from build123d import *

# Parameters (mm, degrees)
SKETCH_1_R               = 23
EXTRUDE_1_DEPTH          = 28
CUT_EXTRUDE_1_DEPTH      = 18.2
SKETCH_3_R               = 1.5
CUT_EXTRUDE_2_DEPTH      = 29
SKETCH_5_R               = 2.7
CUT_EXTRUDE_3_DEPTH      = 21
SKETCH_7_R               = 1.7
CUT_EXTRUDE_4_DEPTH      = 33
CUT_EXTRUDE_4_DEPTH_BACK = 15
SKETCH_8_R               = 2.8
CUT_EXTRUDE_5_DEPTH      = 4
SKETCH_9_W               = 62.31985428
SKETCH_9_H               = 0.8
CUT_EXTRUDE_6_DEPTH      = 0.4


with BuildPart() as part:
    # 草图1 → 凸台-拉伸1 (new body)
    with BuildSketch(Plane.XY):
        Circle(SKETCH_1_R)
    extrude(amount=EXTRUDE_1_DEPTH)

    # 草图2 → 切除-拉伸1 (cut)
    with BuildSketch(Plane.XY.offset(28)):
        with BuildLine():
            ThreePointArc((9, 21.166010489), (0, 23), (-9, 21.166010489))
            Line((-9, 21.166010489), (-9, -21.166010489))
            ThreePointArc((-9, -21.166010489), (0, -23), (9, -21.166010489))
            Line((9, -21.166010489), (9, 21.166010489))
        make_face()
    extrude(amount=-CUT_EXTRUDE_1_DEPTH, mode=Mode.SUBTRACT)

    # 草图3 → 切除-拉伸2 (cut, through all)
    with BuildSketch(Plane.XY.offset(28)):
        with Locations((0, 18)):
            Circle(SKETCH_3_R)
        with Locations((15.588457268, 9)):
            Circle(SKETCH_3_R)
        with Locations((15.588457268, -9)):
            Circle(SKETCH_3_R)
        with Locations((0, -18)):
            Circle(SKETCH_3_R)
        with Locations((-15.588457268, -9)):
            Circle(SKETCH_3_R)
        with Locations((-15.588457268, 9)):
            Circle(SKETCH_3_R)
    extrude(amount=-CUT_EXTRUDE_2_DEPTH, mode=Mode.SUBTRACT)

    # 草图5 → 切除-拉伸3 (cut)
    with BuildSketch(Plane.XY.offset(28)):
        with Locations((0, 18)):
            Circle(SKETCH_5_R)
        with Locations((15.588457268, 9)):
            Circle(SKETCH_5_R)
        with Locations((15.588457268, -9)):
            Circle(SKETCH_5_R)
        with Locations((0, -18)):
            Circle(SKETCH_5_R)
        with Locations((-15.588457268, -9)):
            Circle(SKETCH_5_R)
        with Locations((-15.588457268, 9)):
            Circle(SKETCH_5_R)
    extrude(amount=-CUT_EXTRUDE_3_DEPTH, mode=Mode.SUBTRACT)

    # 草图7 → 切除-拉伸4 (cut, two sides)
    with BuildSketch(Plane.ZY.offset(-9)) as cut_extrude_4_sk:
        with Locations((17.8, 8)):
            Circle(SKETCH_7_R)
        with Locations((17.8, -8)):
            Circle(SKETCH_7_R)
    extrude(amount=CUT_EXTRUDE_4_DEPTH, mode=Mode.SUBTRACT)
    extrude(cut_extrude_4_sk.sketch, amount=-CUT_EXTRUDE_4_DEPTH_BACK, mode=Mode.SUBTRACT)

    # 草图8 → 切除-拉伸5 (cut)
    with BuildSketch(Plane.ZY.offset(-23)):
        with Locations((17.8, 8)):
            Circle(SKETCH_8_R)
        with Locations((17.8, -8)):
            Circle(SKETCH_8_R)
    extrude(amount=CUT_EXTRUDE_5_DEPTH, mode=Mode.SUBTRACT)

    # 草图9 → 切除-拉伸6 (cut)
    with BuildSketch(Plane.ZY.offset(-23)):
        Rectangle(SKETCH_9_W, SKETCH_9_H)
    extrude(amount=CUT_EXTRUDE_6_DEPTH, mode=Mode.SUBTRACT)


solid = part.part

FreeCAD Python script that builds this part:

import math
import FreeCAD as App
import Part
import Sketcher

V = App.Vector


def add_polygon(sketch, points):
    """Adds a closed chain of lines whose ends are joined by coincident constraints."""
    first, n = sketch.GeometryCount, len(points)
    for a, b in zip(points, points[1:] + points[:1]):
        sketch.addGeometry(Part.LineSegment(App.Vector(*a, 0), App.Vector(*b, 0)), False)
    for i in range(n):
        sketch.addConstraint(Sketcher.Constraint("Coincident", first + i, 2, first + (i + 1) % n, 1))

doc = App.newDocument("Part")
body = doc.addObject("PartDesign::Body", "Body")

sketch1 = body.newObject("Sketcher::SketchObject", "Sketch")
sketch1.AttachmentSupport = (doc.getObject("XY_Plane"), [""])
sketch1.MapMode = "FlatFace"
sketch1.addGeometry(Part.Circle(V(0, 0, 0), V(0, 0, 1), 23), False)
sketch1.addConstraint([
    Sketcher.Constraint("Coincident", 0, 3, -1, 1),
    Sketcher.Constraint("Diameter", 0, 46.0),
])
pad1 = body.newObject("PartDesign::Pad", "Pad")
pad1.Profile = sketch1
pad1.Length = 28

sketch2 = body.newObject("Sketcher::SketchObject", "Sketch001")
sketch2.AttachmentSupport = (doc.getObject("XY_Plane"), [""])
sketch2.MapMode = "FlatFace"
sketch2.AttachmentOffset = App.Placement(V(0, 0, 28), App.Rotation())
sketch2.addGeometry([
    Part.ArcOfCircle(Part.Circle(V(0, 0, 0), V(0, 0, 1), 23), math.radians(67), math.radians(113)),
    Part.LineSegment(V(-9, 21, 0), V(-9, -21, 0)),
    Part.ArcOfCircle(Part.Circle(V(0, 0, 0), V(0, 0, 1), 23), math.radians(-113), math.radians(-67)),
    Part.LineSegment(V(9, -21, 0), V(9, 21, 0)),
], False)
sketch2.addConstraint([
    Sketcher.Constraint("Coincident", 0, 2, 1, 1),
    Sketcher.Constraint("Coincident", 1, 2, 2, 1),
    Sketcher.Constraint("Coincident", 2, 2, 3, 1),
    Sketcher.Constraint("Coincident", 3, 2, 0, 1),
    Sketcher.Constraint("Vertical", 1),
    Sketcher.Constraint("Vertical", 3),
    Sketcher.Constraint("Coincident", 0, 3, -1, 1),
    Sketcher.Constraint("Coincident", 2, 3, -1, 1),
    Sketcher.Constraint("Equal", 0, 2),
    Sketcher.Constraint("Horizontal", 1, 2, 2, 2),
    Sketcher.Constraint("Radius", 0, 23.0),
    Sketcher.Constraint("DistanceX", 0, 2, -1, 1, 9.0),
])
pocket1 = body.newObject("PartDesign::Pocket", "Pocket")
pocket1.Profile = sketch2
pocket1.Length = 18.2

sketch3 = body.newObject("Sketcher::SketchObject", "Sketch002")
sketch3.AttachmentSupport = (doc.getObject("XY_Plane"), [""])
sketch3.MapMode = "FlatFace"
sketch3.AttachmentOffset = App.Placement(V(0, 0, 28), App.Rotation())
sketch3.addGeometry([
    Part.Circle(V(0, 18, 0), V(0, 0, 1), 1.5),
    Part.Circle(V(15.6, 9, 0), V(0, 0, 1), 1.5),
    Part.Circle(V(15.6, -9, 0), V(0, 0, 1), 1.5),
    Part.Circle(V(0, -18, 0), V(0, 0, 1), 1.5),
    Part.Circle(V(-15.6, -9, 0), V(0, 0, 1), 1.5),
    Part.Circle(V(-15.6, 9, 0), V(0, 0, 1), 1.5),
], False)
sketch3.addConstraint([
    Sketcher.Constraint("Equal", 0, 1),
    Sketcher.Constraint("Equal", 1, 2),
    Sketcher.Constraint("Equal", 2, 3),
    Sketcher.Constraint("Equal", 3, 4),
    Sketcher.Constraint("Equal", 4, 5),
    Sketcher.Constraint("Symmetric", 0, 3, 3, 3, -1, 1),
    Sketcher.Constraint("Symmetric", 1, 3, 4, 3, -1, 1),
    Sketcher.Constraint("Symmetric", 2, 3, 5, 3, -1, 1),
    Sketcher.Constraint("Symmetric", 2, 3, 4, 3, -2),
    Sketcher.Constraint("PointOnObject", 0, 3, -2),
    Sketcher.Constraint("Diameter", 0, 3.0),
    Sketcher.Constraint("DistanceY", -1, 1, 0, 3, 18.0),
    Sketcher.Constraint("DistanceY", -1, 1, 1, 3, 9.0),
    Sketcher.Constraint("DistanceX", -1, 1, 1, 3, 15.588457),
])
pocket2 = body.newObject("PartDesign::Pocket", "Pocket001")
pocket2.Profile = sketch3
pocket2.Type = "ThroughAll"

sketch4 = body.newObject("Sketcher::SketchObject", "Sketch003")
sketch4.AttachmentSupport = (doc.getObject("XY_Plane"), [""])
sketch4.MapMode = "FlatFace"
sketch4.AttachmentOffset = App.Placement(V(0, 0, 28), App.Rotation())
sketch4.addGeometry([
    Part.Circle(V(0, 18, 0), V(0, 0, 1), 2.7),
    Part.Circle(V(15.6, 9, 0), V(0, 0, 1), 2.7),
    Part.Circle(V(15.6, -9, 0), V(0, 0, 1), 2.7),
    Part.Circle(V(0, -18, 0), V(0, 0, 1), 2.7),
    Part.Circle(V(-15.6, -9, 0), V(0, 0, 1), 2.7),
    Part.Circle(V(-15.6, 9, 0), V(0, 0, 1), 2.7),
], False)
sketch4.addConstraint([
    Sketcher.Constraint("Equal", 0, 1),
    Sketcher.Constraint("Equal", 1, 2),
    Sketcher.Constraint("Equal", 2, 3),
    Sketcher.Constraint("Equal", 3, 4),
    Sketcher.Constraint("Equal", 4, 5),
    Sketcher.Constraint("Symmetric", 0, 3, 3, 3, -1, 1),
    Sketcher.Constraint("Symmetric", 1, 3, 4, 3, -1, 1),
    Sketcher.Constraint("Symmetric", 2, 3, 5, 3, -1, 1),
    Sketcher.Constraint("Symmetric", 2, 3, 4, 3, -2),
    Sketcher.Constraint("PointOnObject", 0, 3, -2),
    Sketcher.Constraint("Diameter", 0, 5.4),
    Sketcher.Constraint("DistanceY", -1, 1, 0, 3, 18.0),
    Sketcher.Constraint("DistanceY", -1, 1, 1, 3, 9.0),
    Sketcher.Constraint("DistanceX", -1, 1, 1, 3, 15.588457),
])
pocket3 = body.newObject("PartDesign::Pocket", "Pocket002")
pocket3.Profile = sketch4
pocket3.Length = 21

sketch5 = body.newObject("Sketcher::SketchObject", "Sketch004")
sketch5.AttachmentSupport = (doc.getObject("YZ_Plane"), [""])
sketch5.MapMode = "FlatFace"
sketch5.AttachmentOffset = App.Placement(V(0, 0, 9), App.Rotation())
sketch5.addGeometry([
    Part.Circle(V(8, 17.8, 0), V(0, 0, 1), 1.7),
    Part.Circle(V(-8, 17.8, 0), V(0, 0, 1), 1.7),
], False)
sketch5.addConstraint([
    Sketcher.Constraint("Equal", 0, 1),
    Sketcher.Constraint("Symmetric", 0, 3, 1, 3, -2),
    Sketcher.Constraint("Diameter", 0, 3.4),
    Sketcher.Constraint("DistanceX", -1, 1, 0, 3, 8.0),
    Sketcher.Constraint("DistanceY", -1, 1, 0, 3, 17.8),
])
pocket4 = body.newObject("PartDesign::Pocket", "Pocket003")
pocket4.Profile = sketch5
pocket4.Type = "ThroughAll"
pocket4.Midplane = True

sketch6 = body.newObject("Sketcher::SketchObject", "Sketch005")
sketch6.AttachmentSupport = (doc.getObject("YZ_Plane"), [""])
sketch6.MapMode = "FlatFace"
sketch6.AttachmentOffset = App.Placement(V(0, 0, 23), App.Rotation())
sketch6.addGeometry([
    Part.Circle(V(8, 17.8, 0), V(0, 0, 1), 2.8),
    Part.Circle(V(-8, 17.8, 0), V(0, 0, 1), 2.8),
], False)
sketch6.addConstraint([
    Sketcher.Constraint("Equal", 0, 1),
    Sketcher.Constraint("Symmetric", 0, 3, 1, 3, -2),
    Sketcher.Constraint("Diameter", 0, 5.6),
    Sketcher.Constraint("DistanceX", -1, 1, 0, 3, 8.0),
    Sketcher.Constraint("DistanceY", -1, 1, 0, 3, 17.8),
])
pocket5 = body.newObject("PartDesign::Pocket", "Pocket004")
pocket5.Profile = sketch6
pocket5.Length = 4

sketch7 = body.newObject("Sketcher::SketchObject", "Sketch006")
sketch7.AttachmentSupport = (doc.getObject("YZ_Plane"), [""])
sketch7.MapMode = "FlatFace"
sketch7.AttachmentOffset = App.Placement(V(0, 0, 23), App.Rotation())
add_polygon(sketch7, [(0.4, -31.2), (-0.4, -31.2), (-0.4, 31.2), (0.4, 31.2)])
sketch7.addConstraint([
    Sketcher.Constraint("Horizontal", 0),
    Sketcher.Constraint("Vertical", 1),
    Sketcher.Constraint("Horizontal", 2),
    Sketcher.Constraint("Vertical", 3),
    Sketcher.Constraint("Symmetric", 0, 2, 2, 2, -1, 1),
    Sketcher.Constraint("DistanceX", 0, 2, 0, 1, 0.8),
    Sketcher.Constraint("DistanceY", 1, 1, 1, 2, 62.319854),
])
pocket6 = body.newObject("PartDesign::Pocket", "Pocket005")
pocket6.Profile = sketch7
pocket6.Length = 0.4

doc.recompute()
